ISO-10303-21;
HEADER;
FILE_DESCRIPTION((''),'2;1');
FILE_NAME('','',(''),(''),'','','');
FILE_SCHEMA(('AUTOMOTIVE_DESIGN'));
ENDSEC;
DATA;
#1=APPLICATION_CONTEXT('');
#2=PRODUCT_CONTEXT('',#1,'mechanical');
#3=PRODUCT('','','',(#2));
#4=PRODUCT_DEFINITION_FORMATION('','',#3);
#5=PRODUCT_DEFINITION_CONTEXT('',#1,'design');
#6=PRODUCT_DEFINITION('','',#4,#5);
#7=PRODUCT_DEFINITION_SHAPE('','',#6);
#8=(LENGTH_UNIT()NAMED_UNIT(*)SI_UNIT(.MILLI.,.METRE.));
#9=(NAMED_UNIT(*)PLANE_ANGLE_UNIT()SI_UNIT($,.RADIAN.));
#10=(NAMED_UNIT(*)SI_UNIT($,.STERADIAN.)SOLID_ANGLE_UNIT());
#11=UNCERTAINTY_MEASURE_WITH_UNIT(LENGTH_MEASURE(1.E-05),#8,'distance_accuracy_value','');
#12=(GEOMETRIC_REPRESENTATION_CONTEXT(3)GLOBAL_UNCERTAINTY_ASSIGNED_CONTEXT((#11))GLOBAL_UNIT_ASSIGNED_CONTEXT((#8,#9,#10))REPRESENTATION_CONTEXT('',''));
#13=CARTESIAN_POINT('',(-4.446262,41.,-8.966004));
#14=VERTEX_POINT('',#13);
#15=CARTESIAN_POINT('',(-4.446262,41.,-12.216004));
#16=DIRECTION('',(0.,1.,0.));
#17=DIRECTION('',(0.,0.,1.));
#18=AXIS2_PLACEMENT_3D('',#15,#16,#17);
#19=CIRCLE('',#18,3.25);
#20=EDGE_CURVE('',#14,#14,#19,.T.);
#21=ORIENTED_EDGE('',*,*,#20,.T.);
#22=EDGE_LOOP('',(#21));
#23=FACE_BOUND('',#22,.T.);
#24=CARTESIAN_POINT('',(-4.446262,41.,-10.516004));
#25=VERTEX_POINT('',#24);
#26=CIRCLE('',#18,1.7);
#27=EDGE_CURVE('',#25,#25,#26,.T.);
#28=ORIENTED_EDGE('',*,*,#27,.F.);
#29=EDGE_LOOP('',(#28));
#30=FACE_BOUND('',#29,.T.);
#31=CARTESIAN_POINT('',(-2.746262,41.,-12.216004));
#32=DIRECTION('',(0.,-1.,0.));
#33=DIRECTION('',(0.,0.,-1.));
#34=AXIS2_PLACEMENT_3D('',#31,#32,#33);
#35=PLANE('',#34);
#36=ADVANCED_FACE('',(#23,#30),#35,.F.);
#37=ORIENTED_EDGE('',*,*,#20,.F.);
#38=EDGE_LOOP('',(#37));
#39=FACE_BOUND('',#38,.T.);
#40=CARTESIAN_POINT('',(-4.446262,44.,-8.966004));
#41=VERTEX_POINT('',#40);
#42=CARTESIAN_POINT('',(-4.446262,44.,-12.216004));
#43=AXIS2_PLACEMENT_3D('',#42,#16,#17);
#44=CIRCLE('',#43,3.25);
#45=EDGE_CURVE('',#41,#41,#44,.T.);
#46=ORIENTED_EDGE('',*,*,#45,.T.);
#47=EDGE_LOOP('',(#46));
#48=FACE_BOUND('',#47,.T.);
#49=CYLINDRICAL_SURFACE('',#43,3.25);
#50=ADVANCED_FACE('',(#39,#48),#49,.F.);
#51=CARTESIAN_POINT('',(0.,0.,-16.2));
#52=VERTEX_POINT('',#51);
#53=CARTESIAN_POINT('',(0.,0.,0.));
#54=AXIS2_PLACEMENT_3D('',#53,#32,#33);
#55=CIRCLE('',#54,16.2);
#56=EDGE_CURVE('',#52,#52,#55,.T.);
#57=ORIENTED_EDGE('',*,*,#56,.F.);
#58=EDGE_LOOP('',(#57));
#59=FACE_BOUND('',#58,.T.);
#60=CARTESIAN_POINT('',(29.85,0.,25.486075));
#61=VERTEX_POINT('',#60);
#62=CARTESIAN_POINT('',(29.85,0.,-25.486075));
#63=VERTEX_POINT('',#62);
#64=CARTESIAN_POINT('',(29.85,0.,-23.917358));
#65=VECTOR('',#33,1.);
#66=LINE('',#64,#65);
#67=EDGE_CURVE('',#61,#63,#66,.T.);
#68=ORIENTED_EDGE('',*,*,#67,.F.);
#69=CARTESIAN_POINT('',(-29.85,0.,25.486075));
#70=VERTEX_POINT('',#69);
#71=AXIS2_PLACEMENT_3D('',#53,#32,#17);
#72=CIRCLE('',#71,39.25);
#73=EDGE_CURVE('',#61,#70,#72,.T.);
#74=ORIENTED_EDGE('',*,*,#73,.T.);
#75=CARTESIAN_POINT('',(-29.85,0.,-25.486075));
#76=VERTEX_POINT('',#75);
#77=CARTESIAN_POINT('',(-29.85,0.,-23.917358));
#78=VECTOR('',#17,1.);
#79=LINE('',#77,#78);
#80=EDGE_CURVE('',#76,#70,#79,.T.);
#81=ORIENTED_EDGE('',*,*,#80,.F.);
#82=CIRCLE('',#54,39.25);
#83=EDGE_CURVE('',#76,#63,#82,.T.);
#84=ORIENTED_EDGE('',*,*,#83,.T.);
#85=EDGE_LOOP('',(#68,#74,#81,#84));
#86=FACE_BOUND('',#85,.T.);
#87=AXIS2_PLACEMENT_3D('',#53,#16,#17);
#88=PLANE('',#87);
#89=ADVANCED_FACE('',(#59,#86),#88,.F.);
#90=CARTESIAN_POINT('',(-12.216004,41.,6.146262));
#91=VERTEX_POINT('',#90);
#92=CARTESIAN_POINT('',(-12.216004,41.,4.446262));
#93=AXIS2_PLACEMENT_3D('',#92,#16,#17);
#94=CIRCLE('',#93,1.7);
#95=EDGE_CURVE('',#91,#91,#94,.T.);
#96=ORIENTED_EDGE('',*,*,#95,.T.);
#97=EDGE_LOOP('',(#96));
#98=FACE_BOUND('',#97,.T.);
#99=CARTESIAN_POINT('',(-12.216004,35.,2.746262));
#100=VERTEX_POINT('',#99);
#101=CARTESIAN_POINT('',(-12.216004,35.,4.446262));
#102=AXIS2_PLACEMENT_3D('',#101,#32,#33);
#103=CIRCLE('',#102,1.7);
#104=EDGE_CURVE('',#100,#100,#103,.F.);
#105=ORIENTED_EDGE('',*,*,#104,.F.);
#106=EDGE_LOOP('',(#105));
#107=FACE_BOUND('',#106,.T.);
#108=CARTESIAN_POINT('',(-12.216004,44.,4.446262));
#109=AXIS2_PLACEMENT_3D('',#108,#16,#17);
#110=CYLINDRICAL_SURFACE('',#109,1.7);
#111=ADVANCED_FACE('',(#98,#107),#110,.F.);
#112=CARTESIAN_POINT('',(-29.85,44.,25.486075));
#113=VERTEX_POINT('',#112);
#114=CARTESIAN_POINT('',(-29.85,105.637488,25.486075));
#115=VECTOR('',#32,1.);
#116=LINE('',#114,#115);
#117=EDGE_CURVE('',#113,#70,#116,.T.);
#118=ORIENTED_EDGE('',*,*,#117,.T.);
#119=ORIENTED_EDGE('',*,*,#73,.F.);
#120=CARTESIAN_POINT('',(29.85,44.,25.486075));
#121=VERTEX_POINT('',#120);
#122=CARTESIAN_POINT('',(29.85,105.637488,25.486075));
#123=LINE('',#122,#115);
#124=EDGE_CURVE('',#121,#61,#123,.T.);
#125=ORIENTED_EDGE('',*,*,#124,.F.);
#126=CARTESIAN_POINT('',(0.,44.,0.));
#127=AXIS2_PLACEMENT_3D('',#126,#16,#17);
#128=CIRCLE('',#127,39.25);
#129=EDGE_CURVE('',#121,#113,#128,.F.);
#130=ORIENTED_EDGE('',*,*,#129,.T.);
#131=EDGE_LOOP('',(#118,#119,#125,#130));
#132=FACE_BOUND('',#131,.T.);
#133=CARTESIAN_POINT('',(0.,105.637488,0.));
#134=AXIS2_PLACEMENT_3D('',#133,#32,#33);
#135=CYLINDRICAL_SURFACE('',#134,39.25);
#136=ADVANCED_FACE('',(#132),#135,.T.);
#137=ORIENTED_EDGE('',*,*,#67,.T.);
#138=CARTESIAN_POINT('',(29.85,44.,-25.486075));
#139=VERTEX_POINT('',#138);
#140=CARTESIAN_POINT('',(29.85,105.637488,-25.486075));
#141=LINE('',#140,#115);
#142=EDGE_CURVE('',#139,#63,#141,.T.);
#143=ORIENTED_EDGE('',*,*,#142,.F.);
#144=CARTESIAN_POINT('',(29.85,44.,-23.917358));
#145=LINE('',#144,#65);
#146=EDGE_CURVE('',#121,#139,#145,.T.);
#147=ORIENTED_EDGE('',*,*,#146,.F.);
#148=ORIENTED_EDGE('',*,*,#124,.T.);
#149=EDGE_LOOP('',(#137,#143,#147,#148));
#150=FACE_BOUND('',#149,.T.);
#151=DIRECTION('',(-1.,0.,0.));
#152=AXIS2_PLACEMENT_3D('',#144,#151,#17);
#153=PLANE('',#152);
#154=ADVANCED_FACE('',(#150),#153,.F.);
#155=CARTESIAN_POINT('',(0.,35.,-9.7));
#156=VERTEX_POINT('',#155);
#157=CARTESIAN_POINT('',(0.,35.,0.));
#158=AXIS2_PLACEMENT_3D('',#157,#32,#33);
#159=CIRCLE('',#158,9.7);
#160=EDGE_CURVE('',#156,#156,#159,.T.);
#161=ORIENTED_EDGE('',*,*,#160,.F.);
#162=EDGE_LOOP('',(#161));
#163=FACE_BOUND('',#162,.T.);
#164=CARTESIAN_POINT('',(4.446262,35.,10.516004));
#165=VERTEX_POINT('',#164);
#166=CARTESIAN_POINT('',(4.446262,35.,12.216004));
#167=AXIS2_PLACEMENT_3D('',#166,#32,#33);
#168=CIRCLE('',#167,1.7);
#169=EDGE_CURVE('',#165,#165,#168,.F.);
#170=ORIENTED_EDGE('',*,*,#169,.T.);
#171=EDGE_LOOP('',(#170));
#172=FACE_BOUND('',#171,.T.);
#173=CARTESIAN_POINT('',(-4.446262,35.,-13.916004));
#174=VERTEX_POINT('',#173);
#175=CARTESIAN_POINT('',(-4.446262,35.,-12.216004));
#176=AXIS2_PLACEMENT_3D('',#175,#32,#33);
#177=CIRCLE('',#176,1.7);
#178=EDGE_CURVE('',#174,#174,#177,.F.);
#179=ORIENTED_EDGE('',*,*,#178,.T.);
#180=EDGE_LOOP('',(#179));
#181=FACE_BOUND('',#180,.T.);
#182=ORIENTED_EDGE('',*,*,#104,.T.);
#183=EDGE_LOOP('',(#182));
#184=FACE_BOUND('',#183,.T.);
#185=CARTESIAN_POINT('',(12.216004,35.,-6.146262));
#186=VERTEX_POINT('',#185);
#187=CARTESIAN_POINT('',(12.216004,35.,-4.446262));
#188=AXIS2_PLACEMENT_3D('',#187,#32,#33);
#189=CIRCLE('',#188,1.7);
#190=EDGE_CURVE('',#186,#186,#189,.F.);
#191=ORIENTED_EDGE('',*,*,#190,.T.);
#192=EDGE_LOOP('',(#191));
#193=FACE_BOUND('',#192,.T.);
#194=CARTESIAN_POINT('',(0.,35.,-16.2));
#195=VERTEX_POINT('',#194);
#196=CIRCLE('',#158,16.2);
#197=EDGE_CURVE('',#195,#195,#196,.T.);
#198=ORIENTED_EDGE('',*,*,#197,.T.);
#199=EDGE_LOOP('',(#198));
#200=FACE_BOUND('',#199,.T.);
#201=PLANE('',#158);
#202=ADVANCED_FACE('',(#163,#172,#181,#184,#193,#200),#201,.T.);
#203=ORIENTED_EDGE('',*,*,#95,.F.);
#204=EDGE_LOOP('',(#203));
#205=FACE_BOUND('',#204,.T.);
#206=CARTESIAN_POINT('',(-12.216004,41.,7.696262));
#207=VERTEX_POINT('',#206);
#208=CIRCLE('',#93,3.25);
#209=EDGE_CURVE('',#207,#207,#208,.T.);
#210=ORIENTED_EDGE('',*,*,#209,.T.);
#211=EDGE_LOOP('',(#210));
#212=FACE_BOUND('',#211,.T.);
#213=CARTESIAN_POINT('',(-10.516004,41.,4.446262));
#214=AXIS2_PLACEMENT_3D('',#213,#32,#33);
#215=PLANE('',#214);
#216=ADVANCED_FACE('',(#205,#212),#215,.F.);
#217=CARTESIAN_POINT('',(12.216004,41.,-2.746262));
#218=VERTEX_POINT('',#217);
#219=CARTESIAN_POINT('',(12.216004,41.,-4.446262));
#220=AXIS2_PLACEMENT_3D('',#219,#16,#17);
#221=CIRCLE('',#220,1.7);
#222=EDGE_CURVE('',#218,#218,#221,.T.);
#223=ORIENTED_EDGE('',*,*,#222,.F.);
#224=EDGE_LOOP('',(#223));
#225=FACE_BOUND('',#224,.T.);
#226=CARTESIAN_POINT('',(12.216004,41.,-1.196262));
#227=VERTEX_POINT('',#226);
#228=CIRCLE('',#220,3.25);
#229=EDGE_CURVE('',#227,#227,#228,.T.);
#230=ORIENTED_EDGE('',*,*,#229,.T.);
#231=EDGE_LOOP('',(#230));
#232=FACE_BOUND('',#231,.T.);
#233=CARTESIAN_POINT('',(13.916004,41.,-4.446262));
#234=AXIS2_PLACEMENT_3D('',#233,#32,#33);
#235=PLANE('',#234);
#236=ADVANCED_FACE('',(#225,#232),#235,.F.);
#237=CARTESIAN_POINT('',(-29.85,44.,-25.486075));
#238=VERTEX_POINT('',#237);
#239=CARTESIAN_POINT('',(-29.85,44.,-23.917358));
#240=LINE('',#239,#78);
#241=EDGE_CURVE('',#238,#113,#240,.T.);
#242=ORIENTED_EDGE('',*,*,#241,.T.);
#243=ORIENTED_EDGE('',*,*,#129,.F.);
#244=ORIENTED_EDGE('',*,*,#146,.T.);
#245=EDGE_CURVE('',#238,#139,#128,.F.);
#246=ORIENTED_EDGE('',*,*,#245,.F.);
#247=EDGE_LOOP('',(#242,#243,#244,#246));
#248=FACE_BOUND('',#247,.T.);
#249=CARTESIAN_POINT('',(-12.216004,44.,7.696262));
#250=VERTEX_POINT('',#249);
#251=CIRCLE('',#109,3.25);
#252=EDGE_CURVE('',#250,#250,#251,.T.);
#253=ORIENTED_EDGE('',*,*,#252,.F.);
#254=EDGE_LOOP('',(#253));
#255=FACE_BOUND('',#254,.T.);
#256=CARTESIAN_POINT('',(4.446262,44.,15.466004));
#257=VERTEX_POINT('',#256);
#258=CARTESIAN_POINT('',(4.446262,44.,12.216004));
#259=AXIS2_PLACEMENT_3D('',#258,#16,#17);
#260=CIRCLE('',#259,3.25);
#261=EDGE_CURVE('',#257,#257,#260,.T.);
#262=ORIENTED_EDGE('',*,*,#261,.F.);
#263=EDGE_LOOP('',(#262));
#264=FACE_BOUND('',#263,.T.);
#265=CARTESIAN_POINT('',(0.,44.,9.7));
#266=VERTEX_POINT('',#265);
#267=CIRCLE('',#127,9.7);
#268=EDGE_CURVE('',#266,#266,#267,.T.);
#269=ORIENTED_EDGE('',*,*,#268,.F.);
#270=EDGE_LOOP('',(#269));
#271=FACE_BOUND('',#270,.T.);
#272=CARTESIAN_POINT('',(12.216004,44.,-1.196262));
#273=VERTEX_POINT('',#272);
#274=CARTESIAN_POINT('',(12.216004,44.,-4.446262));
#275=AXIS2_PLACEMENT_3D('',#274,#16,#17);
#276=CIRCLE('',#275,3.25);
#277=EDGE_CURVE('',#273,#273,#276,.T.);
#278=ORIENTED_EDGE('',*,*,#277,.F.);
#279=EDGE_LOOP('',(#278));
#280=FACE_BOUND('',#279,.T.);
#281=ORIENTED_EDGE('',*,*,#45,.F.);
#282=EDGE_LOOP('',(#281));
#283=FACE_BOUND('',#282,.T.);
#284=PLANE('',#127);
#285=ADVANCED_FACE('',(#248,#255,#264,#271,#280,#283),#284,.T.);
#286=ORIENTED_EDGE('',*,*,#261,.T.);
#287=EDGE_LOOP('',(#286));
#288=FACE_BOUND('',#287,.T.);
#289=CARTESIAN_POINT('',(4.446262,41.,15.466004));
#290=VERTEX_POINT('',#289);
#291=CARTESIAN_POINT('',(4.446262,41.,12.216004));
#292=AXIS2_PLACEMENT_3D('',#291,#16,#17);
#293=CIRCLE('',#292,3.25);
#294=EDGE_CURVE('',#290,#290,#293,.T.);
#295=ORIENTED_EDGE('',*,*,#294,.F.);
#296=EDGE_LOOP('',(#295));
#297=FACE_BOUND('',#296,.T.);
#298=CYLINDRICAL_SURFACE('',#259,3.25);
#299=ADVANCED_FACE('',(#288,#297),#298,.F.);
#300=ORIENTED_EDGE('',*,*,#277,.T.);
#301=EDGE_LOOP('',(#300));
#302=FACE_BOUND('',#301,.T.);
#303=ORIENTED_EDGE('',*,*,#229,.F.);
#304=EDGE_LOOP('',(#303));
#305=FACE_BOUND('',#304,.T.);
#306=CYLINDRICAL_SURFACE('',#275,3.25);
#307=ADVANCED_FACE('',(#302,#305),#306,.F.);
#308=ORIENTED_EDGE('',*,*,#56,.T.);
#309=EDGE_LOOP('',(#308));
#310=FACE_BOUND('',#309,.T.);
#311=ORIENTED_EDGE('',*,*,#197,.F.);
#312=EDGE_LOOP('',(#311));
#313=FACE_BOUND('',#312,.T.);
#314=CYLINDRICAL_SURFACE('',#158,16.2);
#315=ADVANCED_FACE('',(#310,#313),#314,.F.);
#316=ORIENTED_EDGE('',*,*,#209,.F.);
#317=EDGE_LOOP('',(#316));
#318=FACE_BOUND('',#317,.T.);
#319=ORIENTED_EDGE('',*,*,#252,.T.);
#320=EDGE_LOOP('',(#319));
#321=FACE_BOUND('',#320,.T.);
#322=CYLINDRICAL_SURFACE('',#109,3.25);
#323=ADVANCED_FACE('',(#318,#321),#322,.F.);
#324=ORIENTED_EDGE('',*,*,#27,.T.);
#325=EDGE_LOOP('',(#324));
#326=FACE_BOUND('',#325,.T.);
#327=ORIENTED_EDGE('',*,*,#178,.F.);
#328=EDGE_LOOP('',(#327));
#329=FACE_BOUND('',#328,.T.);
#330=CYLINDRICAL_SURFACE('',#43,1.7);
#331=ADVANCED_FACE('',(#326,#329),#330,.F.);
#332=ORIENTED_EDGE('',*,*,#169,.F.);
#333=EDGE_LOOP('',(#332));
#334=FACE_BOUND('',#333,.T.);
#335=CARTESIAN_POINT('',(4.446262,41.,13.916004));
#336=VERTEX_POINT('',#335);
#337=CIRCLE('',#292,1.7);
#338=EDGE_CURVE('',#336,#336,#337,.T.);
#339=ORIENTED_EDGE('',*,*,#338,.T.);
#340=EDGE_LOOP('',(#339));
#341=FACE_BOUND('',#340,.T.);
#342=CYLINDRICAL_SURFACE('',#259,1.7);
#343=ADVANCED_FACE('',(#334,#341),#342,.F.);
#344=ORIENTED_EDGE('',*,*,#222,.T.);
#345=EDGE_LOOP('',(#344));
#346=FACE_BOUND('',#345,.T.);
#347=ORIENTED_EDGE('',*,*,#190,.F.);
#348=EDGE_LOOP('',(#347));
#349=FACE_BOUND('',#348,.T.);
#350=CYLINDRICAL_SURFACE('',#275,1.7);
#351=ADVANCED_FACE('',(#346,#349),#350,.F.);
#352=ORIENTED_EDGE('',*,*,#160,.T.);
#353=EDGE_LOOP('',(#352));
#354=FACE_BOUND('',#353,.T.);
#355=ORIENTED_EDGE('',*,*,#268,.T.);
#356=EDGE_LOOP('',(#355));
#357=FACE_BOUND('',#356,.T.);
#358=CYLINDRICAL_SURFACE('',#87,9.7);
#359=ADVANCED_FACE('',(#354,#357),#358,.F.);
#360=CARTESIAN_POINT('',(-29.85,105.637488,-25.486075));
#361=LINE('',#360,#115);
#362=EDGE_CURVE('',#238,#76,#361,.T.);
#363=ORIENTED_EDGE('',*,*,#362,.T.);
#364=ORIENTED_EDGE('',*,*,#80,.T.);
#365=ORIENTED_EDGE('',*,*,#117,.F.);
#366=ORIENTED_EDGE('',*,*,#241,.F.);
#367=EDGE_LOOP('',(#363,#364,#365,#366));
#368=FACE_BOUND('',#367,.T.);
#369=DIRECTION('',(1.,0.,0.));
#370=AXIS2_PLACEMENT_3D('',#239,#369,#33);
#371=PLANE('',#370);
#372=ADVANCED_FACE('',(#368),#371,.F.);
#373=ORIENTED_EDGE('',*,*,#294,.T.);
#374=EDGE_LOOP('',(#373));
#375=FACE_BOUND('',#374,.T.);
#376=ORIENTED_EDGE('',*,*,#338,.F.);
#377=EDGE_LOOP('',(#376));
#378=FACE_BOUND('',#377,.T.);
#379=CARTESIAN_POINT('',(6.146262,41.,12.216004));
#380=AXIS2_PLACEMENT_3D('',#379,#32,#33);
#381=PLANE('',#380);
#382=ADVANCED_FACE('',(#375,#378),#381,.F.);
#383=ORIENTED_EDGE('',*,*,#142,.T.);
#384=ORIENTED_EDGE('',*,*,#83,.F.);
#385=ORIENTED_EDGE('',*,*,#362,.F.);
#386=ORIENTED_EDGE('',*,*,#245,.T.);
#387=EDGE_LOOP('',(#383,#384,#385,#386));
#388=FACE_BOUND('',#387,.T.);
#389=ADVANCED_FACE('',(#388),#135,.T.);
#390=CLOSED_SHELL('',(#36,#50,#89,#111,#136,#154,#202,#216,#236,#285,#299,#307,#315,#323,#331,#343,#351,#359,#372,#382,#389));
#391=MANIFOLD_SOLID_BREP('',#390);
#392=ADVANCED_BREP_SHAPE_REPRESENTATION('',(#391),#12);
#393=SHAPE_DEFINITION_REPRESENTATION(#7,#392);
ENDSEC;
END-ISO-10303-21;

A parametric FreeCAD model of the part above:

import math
import FreeCAD as App
import Part
import Sketcher

doc = App.newDocument("Part")
params = doc.addObject("Spreadsheet::Sheet", "Params")
for row, (alias, value) in enumerate([
    ("sketch1_radius", "38.25 mm"),
    ("pad1_length", "44 mm"),
    ("sketch2_diameter", "3.4 mm"),
    ("hole_diameter", "3.4 mm"),
    ("hole_cbore_diameter", "6.5 mm"),
    ("hole_cbore_depth", "3 mm"),
    ("sketch3_diameter", "32.4 mm"),
    ("pocket1_length", "35 mm"),
    ("sketch4_diameter", "19.4 mm"),
    ("sketch5_radius", "38.25 mm"),
    ("sketch5_radius2", "39.25 mm"),
    ("pad2_length", "44 mm"),
], start=1):
    params.set(f"A{row}", alias)
    params.set(f"B{row}", "=" + value)
    params.setAlias(f"B{row}", alias)

body = doc.addObject("PartDesign::Body", "Body")

# Sketch on XZ plane
sketch1 = body.newObject("Sketcher::SketchObject", "Sketch")
sketch1.AttachmentSupport = (doc.getObject("XZ_Plane"), [""])
sketch1.MapMode = "FlatFace"
sketch1.addGeometry([
    Part.LineSegment(App.Vector(-30, -24, 0), App.Vector(-30, 24, 0)),
    Part.ArcOfCircle(Part.Circle(App.Vector(0, 0, 0), App.Vector(0, 0, 1), 38), math.radians(39), math.radians(141)),
    Part.LineSegment(App.Vector(30, 24, 0), App.Vector(30, -24, 0)),
    Part.ArcOfCircle(Part.Circle(App.Vector(0, 0, 0), App.Vector(0, 0, 1), 38), math.radians(-141), math.radians(-39)),
], False)
sketch1.addConstraint([
    Sketcher.Constraint("Coincident", 0, 2, 1, 2),
    Sketcher.Constraint("Coincident", 1, 1, 2, 1),
    Sketcher.Constraint("Coincident", 2, 2, 3, 2),
    Sketcher.Constraint("Coincident", 3, 1, 0, 1),
    Sketcher.Constraint("Vertical", 0),
    Sketcher.Constraint("Vertical", 2),
    Sketcher.Constraint("Coincident", 1, 3, -1, 1),
    Sketcher.Constraint("Coincident", 3, 3, -1, 1),
    Sketcher.Constraint("Equal", 1, 3),
    Sketcher.Constraint("Horizontal", 0, 2, 1, 1),
    Sketcher.Constraint("Radius", 1, 38.25),
    Sketcher.Constraint("DistanceX", 0, 2, 1, 1, 59.7),
])
sketch1.setExpression("Constraints[10]", "Params.sketch1_radius")
pad1 = body.newObject("PartDesign::Pad", "Pad")
pad1.Profile = sketch1
pad1.setExpression("Length", "Params.pad1_length")
pad1.Reversed = True

# Sketch on XZ plane
sketch2 = body.newObject("Sketcher::SketchObject", "Sketch001")
sketch2.AttachmentSupport = (doc.getObject("XZ_Plane"), [""])
sketch2.MapMode = "FlatFace"
sketch2.AttachmentOffset = App.Placement(App.Vector(0, 0, -44), App.Rotation())
sketch2.addGeometry(Part.Circle(App.Vector(-4.4, -12.2, 0), App.Vector(0, 0, 1), 1.7), False)
sketch2.addConstraint([
    Sketcher.Constraint("Diameter", 0, 3.4),
    Sketcher.Constraint("DistanceX", 0, 3, -1, 1, 4.446262),
    Sketcher.Constraint("DistanceY", 0, 3, -1, 1, 12.216004),
])
sketch2.setExpression("Constraints[0]", "Params.sketch2_diameter")
doc.recompute()
hole = body.newObject("PartDesign::Hole", "Hole")
hole.Profile = sketch2
hole.ThreadType = "None"
hole.setExpression("Diameter", "Params.hole_diameter")
hole.DepthType = "ThroughAll"
hole.HoleCutType = "Counterbore"
hole.setExpression("HoleCutDiameter", "Params.hole_cbore_diameter")
hole.setExpression("HoleCutDepth", "Params.hole_cbore_depth")
hole.Reversed = True
doc.recompute()

polarpattern = body.newObject("PartDesign::PolarPattern", "PolarPattern")
polarpattern.Originals = [hole]
polarpattern.Axis = (doc.getObject("Y_Axis"), [""])
polarpattern.Angle = 360
polarpattern.Occurrences = 4
body.Tip = polarpattern

# Sketch on XZ plane
sketch3 = body.newObject("Sketcher::SketchObject", "Sketch002")
sketch3.AttachmentSupport = (doc.getObject("XZ_Plane"), [""])
sketch3.MapMode = "FlatFace"
sketch3.addGeometry(Part.Circle(App.Vector(0, 0, 0), App.Vector(0, 0, 1), 16), False)
sketch3.addConstraint([
    Sketcher.Constraint("Coincident", 0, 3, -1, 1),
    Sketcher.Constraint("Diameter", 0, 32.4),
])
sketch3.setExpression("Constraints[1]", "Params.sketch3_diameter")
pocket1 = body.newObject("PartDesign::Pocket", "Pocket")
pocket1.Profile = sketch3
pocket1.setExpression("Length", "Params.pocket1_length")

# Sketch on XZ plane
sketch4 = body.newObject("Sketcher::SketchObject", "Sketch003")
sketch4.AttachmentSupport = (doc.getObject("XZ_Plane"), [""])
sketch4.MapMode = "FlatFace"
sketch4.AttachmentOffset = App.Placement(App.Vector(0, 0, -44), App.Rotation())
sketch4.addGeometry(Part.Circle(App.Vector(0, 0, 0), App.Vector(0, 0, 1), 10), False)
sketch4.addConstraint([
    Sketcher.Constraint("Coincident", 0, 3, -1, 1),
    Sketcher.Constraint("Diameter", 0, 19.4),
])
sketch4.setExpression("Constraints[1]", "Params.sketch4_diameter")
pocket2 = body.newObject("PartDesign::Pocket", "Pocket001")
pocket2.Profile = sketch4
pocket2.Type = "ThroughAll"
pocket2.Reversed = True

# Sketch on XZ plane
sketch5 = body.newObject("Sketcher::SketchObject", "Sketch004")
sketch5.AttachmentSupport = (doc.getObject("XZ_Plane"), [""])
sketch5.MapMode = "FlatFace"
sketch5.addGeometry([
    Part.LineSegment(App.Vector(-29.9, 25.5, 0), App.Vector(-29.9, 23.9, 0)),  # 0
    Part.ArcOfCircle(Part.Circle(App.Vector(0, 0, 0), App.Vector(0, 0, 1), 38.3), math.radians(39), math.radians(141)),  # 1
    Part.LineSegment(App.Vector(29.9, 23.9, 0), App.Vector(29.9, 25.5, 0)),  # 2
    Part.ArcOfCircle(Part.Circle(App.Vector(0, 0, 0), App.Vector(0, 0, 1), 39.2), math.radians(40), math.radians(140)),  # 3
    Part.LineSegment(App.Vector(29.9, -25.5, 0), App.Vector(29.9, -23.9, 0)),  # 4
    Part.ArcOfCircle(Part.Circle(App.Vector(0, 0, 0), App.Vector(0, 0, 1), 38.3), math.radians(-141), math.radians(-39)),  # 5
    Part.LineSegment(App.Vector(-29.9, -23.9, 0), App.Vector(-29.9, -25.5, 0)),  # 6
    Part.ArcOfCircle(Part.Circle(App.Vector(0, 0, 0), App.Vector(0, 0, 1), 39.2), math.radians(-140), math.radians(-40)),  # 7
], False)
sketch5.addConstraint([
    Sketcher.Constraint("Coincident", 0, 2, 1, 2),
    Sketcher.Constraint("Coincident", 1, 1, 2, 1),
    Sketcher.Constraint("Coincident", 2, 2, 3, 1),
    Sketcher.Constraint("Coincident", 3, 2, 0, 1),
    Sketcher.Constraint("Coincident", 4, 2, 5, 2),
    Sketcher.Constraint("Coincident", 5, 1, 6, 1),
    Sketcher.Constraint("Coincident", 6, 2, 7, 1),
    Sketcher.Constraint("Coincident", 7, 2, 4, 1),
    Sketcher.Constraint("Vertical", 0),
    Sketcher.Constraint("Vertical", 2),
    Sketcher.Constraint("Vertical", 4),
    Sketcher.Constraint("Vertical", 6),
    Sketcher.Constraint("Coincident", 1, 3, -1, 1),
    Sketcher.Constraint("Coincident", 3, 3, -1, 1),
    Sketcher.Constraint("Coincident", 5, 3, -1, 1),
    Sketcher.Constraint("Coincident", 7, 3, -1, 1),
    Sketcher.Constraint("Equal", 1, 5),
    Sketcher.Constraint("Equal", 3, 7),
    Sketcher.Constraint("Horizontal", 0, 2, 1, 1),
    Sketcher.Constraint("Horizontal", 4, 2, 5, 1),
    Sketcher.Constraint("Vertical", 2, 2, 4, 2),
    Sketcher.Constraint("Radius", 1, 38.25),
    Sketcher.Constraint("Radius", 3, 39.25),
    Sketcher.Constraint("DistanceX", 0, 2, 1, 1, 59.7),
])
sketch5.setExpression("Constraints[21]", "Params.sketch5_radius")
sketch5.setExpression("Constraints[22]", "Params.sketch5_radius2")
pad2 = body.newObject("PartDesign::Pad", "Pad001")
pad2.Profile = sketch5
pad2.setExpression("Length", "Params.pad2_length")
pad2.Reversed = True

doc.recompute()
